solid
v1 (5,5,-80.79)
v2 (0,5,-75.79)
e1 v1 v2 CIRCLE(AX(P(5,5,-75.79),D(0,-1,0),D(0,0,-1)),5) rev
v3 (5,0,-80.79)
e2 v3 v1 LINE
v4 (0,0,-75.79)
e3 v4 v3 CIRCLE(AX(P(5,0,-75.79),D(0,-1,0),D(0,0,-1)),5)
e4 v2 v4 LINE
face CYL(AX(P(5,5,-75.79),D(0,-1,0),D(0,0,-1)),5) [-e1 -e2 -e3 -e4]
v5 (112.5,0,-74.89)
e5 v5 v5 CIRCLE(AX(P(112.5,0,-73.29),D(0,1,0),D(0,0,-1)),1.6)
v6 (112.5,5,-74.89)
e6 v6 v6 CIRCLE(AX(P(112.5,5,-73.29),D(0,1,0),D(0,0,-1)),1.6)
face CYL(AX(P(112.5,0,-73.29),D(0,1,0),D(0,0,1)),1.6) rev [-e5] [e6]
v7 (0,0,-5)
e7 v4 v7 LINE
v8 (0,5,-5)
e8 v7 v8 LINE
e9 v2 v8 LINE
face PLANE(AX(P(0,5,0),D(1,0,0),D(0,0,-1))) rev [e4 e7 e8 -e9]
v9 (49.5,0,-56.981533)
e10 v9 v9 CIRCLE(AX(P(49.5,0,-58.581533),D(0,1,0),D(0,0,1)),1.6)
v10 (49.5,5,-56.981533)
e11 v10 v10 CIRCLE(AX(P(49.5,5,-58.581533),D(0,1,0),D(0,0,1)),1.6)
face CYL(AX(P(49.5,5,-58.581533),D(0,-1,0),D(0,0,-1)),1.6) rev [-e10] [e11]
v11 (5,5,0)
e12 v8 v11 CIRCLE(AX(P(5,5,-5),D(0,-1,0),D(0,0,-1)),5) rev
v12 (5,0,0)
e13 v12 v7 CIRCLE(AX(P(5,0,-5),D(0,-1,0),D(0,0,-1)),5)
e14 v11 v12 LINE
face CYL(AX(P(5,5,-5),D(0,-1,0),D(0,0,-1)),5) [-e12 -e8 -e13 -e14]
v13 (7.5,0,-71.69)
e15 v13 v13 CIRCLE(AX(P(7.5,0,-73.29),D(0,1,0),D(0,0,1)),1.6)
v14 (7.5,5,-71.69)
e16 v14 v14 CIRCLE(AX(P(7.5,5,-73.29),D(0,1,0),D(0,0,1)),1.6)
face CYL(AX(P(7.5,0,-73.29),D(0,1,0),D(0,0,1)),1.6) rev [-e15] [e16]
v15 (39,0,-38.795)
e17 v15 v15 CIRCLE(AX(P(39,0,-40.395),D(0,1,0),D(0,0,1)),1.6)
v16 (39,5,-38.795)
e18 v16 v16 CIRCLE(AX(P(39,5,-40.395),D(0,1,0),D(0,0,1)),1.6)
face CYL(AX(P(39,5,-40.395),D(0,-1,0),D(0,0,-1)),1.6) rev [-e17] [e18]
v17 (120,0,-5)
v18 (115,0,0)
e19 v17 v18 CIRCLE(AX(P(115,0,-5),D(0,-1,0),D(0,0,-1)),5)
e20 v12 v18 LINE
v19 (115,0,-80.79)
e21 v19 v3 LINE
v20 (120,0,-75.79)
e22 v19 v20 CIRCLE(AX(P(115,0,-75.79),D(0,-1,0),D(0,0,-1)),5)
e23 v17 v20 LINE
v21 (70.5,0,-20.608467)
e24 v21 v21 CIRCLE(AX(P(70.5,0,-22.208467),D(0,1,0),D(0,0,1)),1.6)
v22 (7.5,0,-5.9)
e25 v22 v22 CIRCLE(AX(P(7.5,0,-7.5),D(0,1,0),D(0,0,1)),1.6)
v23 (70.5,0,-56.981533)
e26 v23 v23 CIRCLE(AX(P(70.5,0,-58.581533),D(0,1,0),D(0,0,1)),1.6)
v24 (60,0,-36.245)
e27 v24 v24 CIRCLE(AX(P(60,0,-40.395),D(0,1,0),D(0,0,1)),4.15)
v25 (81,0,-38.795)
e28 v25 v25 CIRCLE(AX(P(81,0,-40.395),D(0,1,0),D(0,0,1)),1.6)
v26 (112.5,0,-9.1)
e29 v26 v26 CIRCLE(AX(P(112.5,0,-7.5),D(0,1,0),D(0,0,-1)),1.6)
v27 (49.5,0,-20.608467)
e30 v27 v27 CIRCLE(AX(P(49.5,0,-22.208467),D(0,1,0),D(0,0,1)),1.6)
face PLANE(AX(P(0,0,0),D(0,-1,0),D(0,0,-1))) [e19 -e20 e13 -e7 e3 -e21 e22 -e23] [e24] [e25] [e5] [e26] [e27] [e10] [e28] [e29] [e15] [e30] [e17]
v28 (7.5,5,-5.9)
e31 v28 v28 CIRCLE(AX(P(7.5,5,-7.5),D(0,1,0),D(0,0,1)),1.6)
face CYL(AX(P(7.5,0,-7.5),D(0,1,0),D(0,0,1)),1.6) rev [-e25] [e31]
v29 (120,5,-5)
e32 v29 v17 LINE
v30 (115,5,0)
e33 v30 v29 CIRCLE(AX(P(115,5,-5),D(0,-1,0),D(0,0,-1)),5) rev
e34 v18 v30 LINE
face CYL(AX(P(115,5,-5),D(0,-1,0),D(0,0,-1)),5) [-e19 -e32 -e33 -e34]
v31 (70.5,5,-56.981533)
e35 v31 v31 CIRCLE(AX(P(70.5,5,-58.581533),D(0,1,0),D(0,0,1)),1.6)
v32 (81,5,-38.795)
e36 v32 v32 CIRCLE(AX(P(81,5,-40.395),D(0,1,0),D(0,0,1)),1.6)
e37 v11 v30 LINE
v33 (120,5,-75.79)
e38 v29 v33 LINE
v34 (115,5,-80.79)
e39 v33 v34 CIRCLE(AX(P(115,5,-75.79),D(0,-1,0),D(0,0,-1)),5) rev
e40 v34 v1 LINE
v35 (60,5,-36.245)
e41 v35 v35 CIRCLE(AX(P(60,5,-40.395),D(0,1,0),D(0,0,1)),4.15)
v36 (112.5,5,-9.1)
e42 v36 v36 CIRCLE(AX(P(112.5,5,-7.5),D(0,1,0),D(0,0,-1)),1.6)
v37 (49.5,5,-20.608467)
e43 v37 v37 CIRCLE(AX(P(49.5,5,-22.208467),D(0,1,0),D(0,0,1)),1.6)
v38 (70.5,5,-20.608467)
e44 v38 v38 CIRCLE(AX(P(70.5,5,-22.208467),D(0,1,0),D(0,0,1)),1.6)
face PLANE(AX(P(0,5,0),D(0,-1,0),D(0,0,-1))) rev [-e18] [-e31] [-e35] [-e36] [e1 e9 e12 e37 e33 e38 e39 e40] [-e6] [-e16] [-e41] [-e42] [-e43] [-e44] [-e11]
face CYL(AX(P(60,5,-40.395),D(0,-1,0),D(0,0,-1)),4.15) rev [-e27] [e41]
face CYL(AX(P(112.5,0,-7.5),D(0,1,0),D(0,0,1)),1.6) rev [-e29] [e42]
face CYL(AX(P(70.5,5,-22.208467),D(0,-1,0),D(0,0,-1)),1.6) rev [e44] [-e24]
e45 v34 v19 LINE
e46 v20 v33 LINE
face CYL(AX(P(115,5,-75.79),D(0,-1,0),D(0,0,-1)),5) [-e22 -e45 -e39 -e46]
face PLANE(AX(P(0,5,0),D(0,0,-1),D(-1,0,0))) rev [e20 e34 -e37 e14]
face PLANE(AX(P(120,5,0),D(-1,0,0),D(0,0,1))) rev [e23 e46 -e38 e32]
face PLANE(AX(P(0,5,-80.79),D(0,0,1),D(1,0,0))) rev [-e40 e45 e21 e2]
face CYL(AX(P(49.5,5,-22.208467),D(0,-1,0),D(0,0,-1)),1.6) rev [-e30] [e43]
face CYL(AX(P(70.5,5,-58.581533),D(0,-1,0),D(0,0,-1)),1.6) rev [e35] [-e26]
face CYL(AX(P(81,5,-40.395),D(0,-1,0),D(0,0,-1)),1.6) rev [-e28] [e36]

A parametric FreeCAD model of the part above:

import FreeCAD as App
import Part
import Sketcher

V = App.Vector
Q = App.Units.Quantity


def edges_at(feature, points):
    """Names of the edges that pass closest to the given points."""
    edges = feature.Shape.Edges
    near = lambda p: min(range(len(edges)), key=lambda i: edges[i].distToShape(Part.Vertex(*p))[0])
    return sorted({f"Edge{near(p) + 1}" for p in points})


def add_polygon(sketch, points):
    """Adds a closed chain of lines whose ends are joined by coincident constraints."""
    first, n = sketch.GeometryCount, len(points)
    for a, b in zip(points, points[1:] + points[:1]):
        sketch.addGeometry(Part.LineSegment(App.Vector(*a, 0), App.Vector(*b, 0)), False)
    for i in range(n):
        sketch.addConstraint(Sketcher.Constraint("Coincident", first + i, 2, first + (i + 1) % n, 1))

doc = App.newDocument("Part")
body = doc.addObject("PartDesign::Body", "Body")

# Sketch on XZ plane
sketch1 = body.newObject("Sketcher::SketchObject", "Sketch")
sketch1.AttachmentSupport = (doc.getObject("XZ_Plane"), [""])
sketch1.MapMode = "FlatFace"
add_polygon(sketch1, [(0, -80.8), (0, 0), (120, 0), (120, -80.8)])  # lines 0-3
sketch1.addGeometry(Part.Circle(V(49.5, -22.2, 0), V(0, 0, 1), 1.6), False)  # 4
sketch1.addGeometry(Part.Circle(V(70.5, -22.2, 0), V(0, 0, 1), 1.6), False)  # 5
sketch1.addGeometry(Part.Circle(V(39, -40.4, 0), V(0, 0, 1), 1.6), False)  # 6
sketch1.addGeometry(Part.Circle(V(49.5, -58.6, 0), V(0, 0, 1), 1.6), False)  # 7
sketch1.addGeometry(Part.Circle(V(60, -40.4, 0), V(0, 0, 1), 4.2), False)  # 8
sketch1.addGeometry(Part.Circle(V(81, -40.4, 0), V(0, 0, 1), 1.6), False)  # 9
sketch1.addGeometry(Part.Circle(V(70.5, -58.6, 0), V(0, 0, 1), 1.6), False)  # 10
sketch1.addConstraint([
    Sketcher.Constraint("Vertical", 0),
    Sketcher.Constraint("Horizontal", 1),
    Sketcher.Constraint("Vertical", 2),
    Sketcher.Constraint("Horizontal", 3),
    Sketcher.Constraint("Coincident", 0, 2, -1, 1),
    Sketcher.Constraint("Equal", 4, 5),
    Sketcher.Constraint("Equal", 5, 6),
    Sketcher.Constraint("Equal", 6, 7),
    Sketcher.Constraint("Equal", 7, 9),
    Sketcher.Constraint("Equal", 9, 10),
    Sketcher.Constraint("Horizontal", 4, 3, 5, 3),
    Sketcher.Constraint("Horizontal", 6, 3, 8, 3),
    Sketcher.Constraint("Horizontal", 8, 3, 9, 3),
    Sketcher.Constraint("Horizontal", 7, 3, 10, 3),
    Sketcher.Constraint("Vertical", 4, 3, 7, 3),
    Sketcher.Constraint("Vertical", 5, 3, 10, 3),
    Sketcher.Constraint("Diameter", 4, Q("3.2 mm")),
    Sketcher.Constraint("Diameter", 8, Q("8.3 mm")),
    Sketcher.Constraint("DistanceX", 1, 1, 1, 2, Q("120 mm")),
    Sketcher.Constraint("DistanceX", -1, 1, 6, 3, Q("39 mm")),
    Sketcher.Constraint("DistanceX", -1, 1, 8, 3, Q("60 mm")),
    Sketcher.Constraint("DistanceX", -1, 1, 9, 3, Q("81 mm")),
    Sketcher.Constraint("DistanceX", 4, 3, 5, 3, Q("21 mm")),
    Sketcher.Constraint("DistanceY", 0, 1, 0, 2, Q("80.79 mm")),
    Sketcher.Constraint("DistanceX", -1, 1, 4, 3, Q("49.5 mm")),
    Sketcher.Constraint("DistanceY", 6, 3, -1, 1, Q("40.395 mm")),
    Sketcher.Constraint("DistanceY", 4, 3, -1, 1, Q("22.208467 mm")),
    Sketcher.Constraint("DistanceY", 7, 3, -1, 1, Q("58.581533 mm")),
])
pad1 = body.newObject("PartDesign::Pad", "Pad")
pad1.Profile = sketch1
pad1.Length = 5
pad1.Reversed = True

# Sketch on XZ plane
sketch2 = body.newObject("Sketcher::SketchObject", "Sketch001")
sketch2.AttachmentSupport = (doc.getObject("XZ_Plane"), [""])
sketch2.MapMode = "FlatFace"
sketch2.AttachmentOffset = App.Placement(V(0, 0, -5), App.Rotation())
sketch2.addGeometry([
    Part.Circle(V(7.5, -73.3, 0), V(0, 0, 1), 1.6),
    Part.Circle(V(7.5, -7.5, 0), V(0, 0, 1), 1.6),
    Part.Circle(V(112.5, -73.3, 0), V(0, 0, 1), 1.6),
    Part.Circle(V(112.5, -7.5, 0), V(0, 0, 1), 1.6),
], False)
sketch2.addConstraint([
    Sketcher.Constraint("Equal", 0, 1),
    Sketcher.Constraint("Equal", 1, 2),
    Sketcher.Constraint("Equal", 2, 3),
    Sketcher.Constraint("Horizontal", 0, 3, 2, 3),
    Sketcher.Constraint("Horizontal", 1, 3, 3, 3),
    Sketcher.Constraint("Vertical", 0, 3, 1, 3),
    Sketcher.Constraint("Vertical", 2, 3, 3, 3),
    Sketcher.Constraint("Diameter", 0, Q("3.2 mm")),
    Sketcher.Constraint("DistanceX", 0, 3, 2, 3, Q("105 mm")),
    Sketcher.Constraint("DistanceX", -1, 1, 0, 3, Q("7.5 mm")),
    Sketcher.Constraint("DistanceY", 1, 3, -1, 1, Q("7.5 mm")),
    Sketcher.Constraint("DistanceY", 0, 3, -1, 1, Q("73.29 mm")),
])
pocket1 = body.newObject("PartDesign::Pocket", "Pocket")
pocket1.Profile = sketch2
pocket1.Type = "ThroughAll"
pocket1.Reversed = True
doc.recompute()

fillet = body.newObject("PartDesign::Fillet", "Fillet")
fillet.Base = (pocket1, edges_at(pocket1, [
    (0, 2.5, -80.79),
    (120, 2.5, -80.79),
    (120, 2.5, 0),
    (0, 2.5, 0),
]))
fillet.Radius = 5

doc.recompute()
